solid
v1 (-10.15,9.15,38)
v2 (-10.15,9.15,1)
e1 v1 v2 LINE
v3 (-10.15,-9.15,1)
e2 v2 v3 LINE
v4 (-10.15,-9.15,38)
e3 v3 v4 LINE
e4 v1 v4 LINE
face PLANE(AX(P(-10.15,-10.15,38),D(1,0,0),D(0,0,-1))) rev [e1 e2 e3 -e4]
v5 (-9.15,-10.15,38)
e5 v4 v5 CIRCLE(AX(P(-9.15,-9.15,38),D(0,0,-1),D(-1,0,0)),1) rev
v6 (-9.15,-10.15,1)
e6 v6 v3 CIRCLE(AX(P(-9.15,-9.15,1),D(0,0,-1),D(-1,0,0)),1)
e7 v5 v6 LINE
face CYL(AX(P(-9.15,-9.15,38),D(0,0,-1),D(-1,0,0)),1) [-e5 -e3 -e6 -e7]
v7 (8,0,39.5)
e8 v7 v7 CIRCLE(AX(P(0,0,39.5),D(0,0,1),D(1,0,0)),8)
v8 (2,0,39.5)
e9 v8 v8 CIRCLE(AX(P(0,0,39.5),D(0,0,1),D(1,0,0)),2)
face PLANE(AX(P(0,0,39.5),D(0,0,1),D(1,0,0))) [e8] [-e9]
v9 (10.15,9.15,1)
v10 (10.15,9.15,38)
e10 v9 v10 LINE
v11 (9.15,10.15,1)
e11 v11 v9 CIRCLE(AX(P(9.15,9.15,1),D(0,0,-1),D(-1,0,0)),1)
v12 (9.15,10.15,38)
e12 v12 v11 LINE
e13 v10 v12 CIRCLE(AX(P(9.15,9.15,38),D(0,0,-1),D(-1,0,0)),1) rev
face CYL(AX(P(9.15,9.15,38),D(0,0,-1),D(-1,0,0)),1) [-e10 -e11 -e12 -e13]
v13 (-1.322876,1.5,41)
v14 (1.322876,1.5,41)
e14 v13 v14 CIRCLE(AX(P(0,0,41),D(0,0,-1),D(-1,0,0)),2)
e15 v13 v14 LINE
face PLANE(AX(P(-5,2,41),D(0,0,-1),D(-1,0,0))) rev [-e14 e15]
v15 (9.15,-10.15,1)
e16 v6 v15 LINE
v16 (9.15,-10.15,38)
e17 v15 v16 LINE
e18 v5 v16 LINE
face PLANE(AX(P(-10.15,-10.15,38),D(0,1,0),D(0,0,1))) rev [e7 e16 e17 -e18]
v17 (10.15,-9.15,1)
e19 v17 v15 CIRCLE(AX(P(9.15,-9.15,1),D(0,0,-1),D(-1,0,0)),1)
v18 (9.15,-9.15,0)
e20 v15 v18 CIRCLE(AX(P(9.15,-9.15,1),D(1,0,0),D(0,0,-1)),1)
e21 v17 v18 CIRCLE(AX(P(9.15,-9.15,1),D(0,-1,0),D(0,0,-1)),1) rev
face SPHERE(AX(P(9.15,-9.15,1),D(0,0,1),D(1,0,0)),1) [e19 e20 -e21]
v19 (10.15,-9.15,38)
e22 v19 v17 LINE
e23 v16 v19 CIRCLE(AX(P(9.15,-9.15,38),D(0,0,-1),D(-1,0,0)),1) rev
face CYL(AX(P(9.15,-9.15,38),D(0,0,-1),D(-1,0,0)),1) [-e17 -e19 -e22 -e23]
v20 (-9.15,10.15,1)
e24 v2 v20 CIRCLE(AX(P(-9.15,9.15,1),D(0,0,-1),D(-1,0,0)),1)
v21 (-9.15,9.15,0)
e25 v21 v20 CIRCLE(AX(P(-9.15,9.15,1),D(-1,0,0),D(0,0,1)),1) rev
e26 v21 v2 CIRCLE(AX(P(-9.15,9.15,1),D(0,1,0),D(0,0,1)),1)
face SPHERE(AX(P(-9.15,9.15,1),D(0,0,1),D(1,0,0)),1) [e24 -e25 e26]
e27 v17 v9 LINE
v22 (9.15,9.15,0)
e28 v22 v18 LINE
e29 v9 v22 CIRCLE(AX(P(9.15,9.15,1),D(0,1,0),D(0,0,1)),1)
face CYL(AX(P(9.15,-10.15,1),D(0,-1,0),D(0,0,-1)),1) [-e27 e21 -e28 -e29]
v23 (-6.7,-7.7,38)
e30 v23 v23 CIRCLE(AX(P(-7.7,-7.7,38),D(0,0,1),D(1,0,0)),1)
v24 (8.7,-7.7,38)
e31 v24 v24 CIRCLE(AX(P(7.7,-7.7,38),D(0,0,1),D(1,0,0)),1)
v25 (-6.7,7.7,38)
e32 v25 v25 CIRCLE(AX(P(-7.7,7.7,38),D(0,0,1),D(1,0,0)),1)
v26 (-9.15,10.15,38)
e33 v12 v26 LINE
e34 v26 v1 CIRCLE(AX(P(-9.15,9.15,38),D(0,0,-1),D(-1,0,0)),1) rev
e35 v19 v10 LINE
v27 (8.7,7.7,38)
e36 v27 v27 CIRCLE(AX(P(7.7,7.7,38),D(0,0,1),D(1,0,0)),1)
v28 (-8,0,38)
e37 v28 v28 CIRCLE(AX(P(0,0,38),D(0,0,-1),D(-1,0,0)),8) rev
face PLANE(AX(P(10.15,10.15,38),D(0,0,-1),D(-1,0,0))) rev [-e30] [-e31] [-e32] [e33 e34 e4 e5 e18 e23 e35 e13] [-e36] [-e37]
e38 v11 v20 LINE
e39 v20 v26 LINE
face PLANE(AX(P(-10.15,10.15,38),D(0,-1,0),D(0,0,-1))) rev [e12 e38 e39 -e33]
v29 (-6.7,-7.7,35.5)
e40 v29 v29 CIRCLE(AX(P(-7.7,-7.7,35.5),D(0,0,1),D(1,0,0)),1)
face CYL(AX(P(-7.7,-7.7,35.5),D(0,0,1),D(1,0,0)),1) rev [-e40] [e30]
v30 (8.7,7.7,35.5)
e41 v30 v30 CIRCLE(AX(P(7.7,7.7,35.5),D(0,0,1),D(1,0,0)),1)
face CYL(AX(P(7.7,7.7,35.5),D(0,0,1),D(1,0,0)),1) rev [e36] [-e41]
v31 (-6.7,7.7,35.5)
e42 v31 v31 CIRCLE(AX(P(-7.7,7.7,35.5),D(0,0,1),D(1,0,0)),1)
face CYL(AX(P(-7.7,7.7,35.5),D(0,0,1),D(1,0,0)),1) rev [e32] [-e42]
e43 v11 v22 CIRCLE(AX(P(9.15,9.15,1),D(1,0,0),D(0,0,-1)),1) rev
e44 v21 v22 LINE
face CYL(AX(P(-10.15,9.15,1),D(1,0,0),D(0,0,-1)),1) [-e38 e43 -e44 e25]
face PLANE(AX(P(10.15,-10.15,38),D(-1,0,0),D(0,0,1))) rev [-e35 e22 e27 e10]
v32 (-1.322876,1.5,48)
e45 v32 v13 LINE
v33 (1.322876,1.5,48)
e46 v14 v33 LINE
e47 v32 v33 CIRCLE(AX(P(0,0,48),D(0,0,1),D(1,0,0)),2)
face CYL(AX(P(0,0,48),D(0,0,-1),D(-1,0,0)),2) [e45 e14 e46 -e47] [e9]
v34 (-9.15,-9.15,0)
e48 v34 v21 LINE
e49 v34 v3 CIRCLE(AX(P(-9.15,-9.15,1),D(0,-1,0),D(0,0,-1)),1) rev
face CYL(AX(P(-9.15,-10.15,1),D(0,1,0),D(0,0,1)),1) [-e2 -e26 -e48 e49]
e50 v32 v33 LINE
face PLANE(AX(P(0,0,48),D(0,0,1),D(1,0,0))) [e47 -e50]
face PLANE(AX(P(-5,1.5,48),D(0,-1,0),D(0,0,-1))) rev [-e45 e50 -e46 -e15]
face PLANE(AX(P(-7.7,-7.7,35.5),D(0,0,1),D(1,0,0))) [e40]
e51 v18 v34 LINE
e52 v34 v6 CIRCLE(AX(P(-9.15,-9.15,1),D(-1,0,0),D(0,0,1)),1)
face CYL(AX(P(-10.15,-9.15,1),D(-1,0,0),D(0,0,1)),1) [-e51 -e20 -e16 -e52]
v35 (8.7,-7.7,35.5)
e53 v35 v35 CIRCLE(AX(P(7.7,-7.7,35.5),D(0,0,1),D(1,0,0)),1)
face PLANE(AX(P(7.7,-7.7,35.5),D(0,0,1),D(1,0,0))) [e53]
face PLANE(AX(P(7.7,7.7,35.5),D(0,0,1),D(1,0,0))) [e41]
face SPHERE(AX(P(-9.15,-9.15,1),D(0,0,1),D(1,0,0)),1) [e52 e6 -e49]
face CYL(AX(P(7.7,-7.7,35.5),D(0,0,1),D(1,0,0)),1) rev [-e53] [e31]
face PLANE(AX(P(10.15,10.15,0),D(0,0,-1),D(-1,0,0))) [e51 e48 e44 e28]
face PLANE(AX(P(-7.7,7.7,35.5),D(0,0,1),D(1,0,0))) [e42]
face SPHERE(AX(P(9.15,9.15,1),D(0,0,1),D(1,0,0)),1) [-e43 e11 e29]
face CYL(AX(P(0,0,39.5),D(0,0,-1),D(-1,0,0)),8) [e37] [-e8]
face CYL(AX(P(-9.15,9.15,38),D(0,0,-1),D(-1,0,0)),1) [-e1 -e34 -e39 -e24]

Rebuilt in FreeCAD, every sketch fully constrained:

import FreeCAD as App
import Part
import Sketcher

V = App.Vector


def edges_at(feature, points):
    """Names of the edges that pass closest to the given points."""
    edges = feature.Shape.Edges
    near = lambda p: min(range(len(edges)), key=lambda i: edges[i].distToShape(Part.Vertex(*p))[0])
    return sorted({f"Edge{near(p) + 1}" for p in points})


def add_polygon(sketch, points):
    """Adds a closed chain of lines whose ends are joined by coincident constraints."""
    first, n = sketch.GeometryCount, len(points)
    for a, b in zip(points, points[1:] + points[:1]):
        sketch.addGeometry(Part.LineSegment(App.Vector(*a, 0), App.Vector(*b, 0)), False)
    for i in range(n):
        sketch.addConstraint(Sketcher.Constraint("Coincident", first + i, 2, first + (i + 1) % n, 1))

doc = App.newDocument("Part")
body = doc.addObject("PartDesign::Body", "Body")

sketch1 = body.newObject("Sketcher::SketchObject", "Sketch")
sketch1.AttachmentSupport = (doc.getObject("XY_Plane"), [""])
sketch1.MapMode = "FlatFace"
add_polygon(sketch1, [(-10.15, 10.15), (-10.15, -10.15), (10.15, -10.15), (10.15, 10.15)])
sketch1.addConstraint(Sketcher.Constraint("Vertical", 0))
sketch1.addConstraint(Sketcher.Constraint("Horizontal", 1))
sketch1.addConstraint(Sketcher.Constraint("Vertical", 2))
sketch1.addConstraint(Sketcher.Constraint("Horizontal", 3))
sketch1.addConstraint(Sketcher.Constraint("Symmetric", 0, 2, 2, 2, -1, 1))
sketch1.addConstraint(Sketcher.Constraint("Equal", 3, 0))
sketch1.addConstraint(Sketcher.Constraint("DistanceX", 1, 1, 1, 2, 20.3))
pad1 = body.newObject("PartDesign::Pad", "Pad")
pad1.Profile = sketch1
pad1.Length = 38

sketch2 = body.newObject("Sketcher::SketchObject", "Sketch001")
sketch2.AttachmentSupport = (doc.getObject("XY_Plane"), [""])
sketch2.MapMode = "FlatFace"
sketch2.AttachmentOffset = App.Placement(V(0, 0, 38), App.Rotation())
sketch2.addGeometry(Part.Circle(V(0, 0, 0), V(0, 0, 1), 8), False)
sketch2.addConstraint(Sketcher.Constraint("Coincident", 0, 3, -1, 1))
sketch2.addConstraint(Sketcher.Constraint("Diameter", 0, 16.0))
pad2 = body.newObject("PartDesign::Pad", "Pad001")
pad2.Profile = sketch2
pad2.Length = 1.5

sketch3 = body.newObject("Sketcher::SketchObject", "Sketch002")
sketch3.AttachmentSupport = (doc.getObject("XY_Plane"), [""])
sketch3.MapMode = "FlatFace"
sketch3.AttachmentOffset = App.Placement(V(0, 0, 39.5), App.Rotation())
sketch3.addGeometry(Part.Circle(V(0, 0, 0), V(0, 0, 1), 2), False)
sketch3.addConstraint(Sketcher.Constraint("Coincident", 0, 3, -1, 1))
sketch3.addConstraint(Sketcher.Constraint("Diameter", 0, 4.0))
pad3 = body.newObject("PartDesign::Pad", "Pad002")
pad3.Profile = sketch3
pad3.Length = 8.5

sketch4 = body.newObject("Sketcher::SketchObject", "Sketch003")
sketch4.AttachmentSupport = (doc.getObject("YZ_Plane"), [""])
sketch4.MapMode = "FlatFace"
add_polygon(sketch4, [(2, 48), (1.5, 48), (1.5, 41), (2, 41)])
sketch4.addConstraint(Sketcher.Constraint("Horizontal", 0))
sketch4.addConstraint(Sketcher.Constraint("Vertical", 1))
sketch4.addConstraint(Sketcher.Constraint("Horizontal", 2))
sketch4.addConstraint(Sketcher.Constraint("Vertical", 3))
sketch4.addConstraint(Sketcher.Constraint("DistanceY", 1, 2, 1, 1, 7.0))
sketch4.addConstraint(Sketcher.Constraint("DistanceX", 0, 2, 0, 1, 0.5))
sketch4.addConstraint(Sketcher.Constraint("DistanceY", -1, 1, 0, 2, 48.0))
sketch4.addConstraint(Sketcher.Constraint("DistanceX", -1, 1, 2, 2, 2.0))
pocket1 = body.newObject("PartDesign::Pocket", "Pocket")
pocket1.Profile = sketch4
pocket1.Length = 10
pocket1.Midplane = True

sketch5 = body.newObject("Sketcher::SketchObject", "Sketch004")
sketch5.AttachmentSupport = (doc.getObject("XY_Plane"), [""])
sketch5.MapMode = "FlatFace"
sketch5.AttachmentOffset = App.Placement(V(0, 0, 38), App.Rotation())
sketch5.addGeometry(Part.Circle(V(-7.7, 7.7, 0), V(0, 0, 1), 1), False)
sketch5.addGeometry(Part.Circle(V(7.7, 7.7, 0), V(0, 0, 1), 1), False)
sketch5.addGeometry(Part.Circle(V(7.7, -7.7, 0), V(0, 0, 1), 1), False)
sketch5.addGeometry(Part.Circle(V(-7.7, -7.7, 0), V(0, 0, 1), 1), False)
sketch5.addConstraint(Sketcher.Constraint("Equal", 0, 1))
sketch5.addConstraint(Sketcher.Constraint("Equal", 1, 2))
sketch5.addConstraint(Sketcher.Constraint("Equal", 2, 3))
sketch5.addConstraint(Sketcher.Constraint("Symmetric", 0, 3, 2, 3, -1, 1))
sketch5.addConstraint(Sketcher.Constraint("Symmetric", 1, 3, 3, 3, -1, 1))
sketch5.addConstraint(Sketcher.Constraint("Symmetric", 0, 3, 1, 3, -2))
sketch5.addConstraint(Sketcher.Constraint("Diameter", 0, 2.0))
sketch5.addConstraint(Sketcher.Constraint("DistanceX", 0, 3, -1, 1, 7.7))
sketch5.addConstraint(Sketcher.Constraint("DistanceY", -1, 1, 0, 3, 7.7))
pocket2 = body.newObject("PartDesign::Pocket", "Pocket001")
pocket2.Profile = sketch5
pocket2.Length = 2.5
doc.recompute()

fillet = body.newObject("PartDesign::Fillet", "Fillet")
fillet.Base = (pocket2, edges_at(pocket2, [
    (0, -10.15, 0),
    (-10.15, 0, 0),
    (0, 10.15, 0),
    (10.15, 0, 0),
    (10.15, -10.15, 19),
    (-10.15, -10.15, 19),
    (-10.15, 10.15, 19),
    (10.15, 10.15, 19),
]))
fillet.Radius = 1

doc.recompute()
